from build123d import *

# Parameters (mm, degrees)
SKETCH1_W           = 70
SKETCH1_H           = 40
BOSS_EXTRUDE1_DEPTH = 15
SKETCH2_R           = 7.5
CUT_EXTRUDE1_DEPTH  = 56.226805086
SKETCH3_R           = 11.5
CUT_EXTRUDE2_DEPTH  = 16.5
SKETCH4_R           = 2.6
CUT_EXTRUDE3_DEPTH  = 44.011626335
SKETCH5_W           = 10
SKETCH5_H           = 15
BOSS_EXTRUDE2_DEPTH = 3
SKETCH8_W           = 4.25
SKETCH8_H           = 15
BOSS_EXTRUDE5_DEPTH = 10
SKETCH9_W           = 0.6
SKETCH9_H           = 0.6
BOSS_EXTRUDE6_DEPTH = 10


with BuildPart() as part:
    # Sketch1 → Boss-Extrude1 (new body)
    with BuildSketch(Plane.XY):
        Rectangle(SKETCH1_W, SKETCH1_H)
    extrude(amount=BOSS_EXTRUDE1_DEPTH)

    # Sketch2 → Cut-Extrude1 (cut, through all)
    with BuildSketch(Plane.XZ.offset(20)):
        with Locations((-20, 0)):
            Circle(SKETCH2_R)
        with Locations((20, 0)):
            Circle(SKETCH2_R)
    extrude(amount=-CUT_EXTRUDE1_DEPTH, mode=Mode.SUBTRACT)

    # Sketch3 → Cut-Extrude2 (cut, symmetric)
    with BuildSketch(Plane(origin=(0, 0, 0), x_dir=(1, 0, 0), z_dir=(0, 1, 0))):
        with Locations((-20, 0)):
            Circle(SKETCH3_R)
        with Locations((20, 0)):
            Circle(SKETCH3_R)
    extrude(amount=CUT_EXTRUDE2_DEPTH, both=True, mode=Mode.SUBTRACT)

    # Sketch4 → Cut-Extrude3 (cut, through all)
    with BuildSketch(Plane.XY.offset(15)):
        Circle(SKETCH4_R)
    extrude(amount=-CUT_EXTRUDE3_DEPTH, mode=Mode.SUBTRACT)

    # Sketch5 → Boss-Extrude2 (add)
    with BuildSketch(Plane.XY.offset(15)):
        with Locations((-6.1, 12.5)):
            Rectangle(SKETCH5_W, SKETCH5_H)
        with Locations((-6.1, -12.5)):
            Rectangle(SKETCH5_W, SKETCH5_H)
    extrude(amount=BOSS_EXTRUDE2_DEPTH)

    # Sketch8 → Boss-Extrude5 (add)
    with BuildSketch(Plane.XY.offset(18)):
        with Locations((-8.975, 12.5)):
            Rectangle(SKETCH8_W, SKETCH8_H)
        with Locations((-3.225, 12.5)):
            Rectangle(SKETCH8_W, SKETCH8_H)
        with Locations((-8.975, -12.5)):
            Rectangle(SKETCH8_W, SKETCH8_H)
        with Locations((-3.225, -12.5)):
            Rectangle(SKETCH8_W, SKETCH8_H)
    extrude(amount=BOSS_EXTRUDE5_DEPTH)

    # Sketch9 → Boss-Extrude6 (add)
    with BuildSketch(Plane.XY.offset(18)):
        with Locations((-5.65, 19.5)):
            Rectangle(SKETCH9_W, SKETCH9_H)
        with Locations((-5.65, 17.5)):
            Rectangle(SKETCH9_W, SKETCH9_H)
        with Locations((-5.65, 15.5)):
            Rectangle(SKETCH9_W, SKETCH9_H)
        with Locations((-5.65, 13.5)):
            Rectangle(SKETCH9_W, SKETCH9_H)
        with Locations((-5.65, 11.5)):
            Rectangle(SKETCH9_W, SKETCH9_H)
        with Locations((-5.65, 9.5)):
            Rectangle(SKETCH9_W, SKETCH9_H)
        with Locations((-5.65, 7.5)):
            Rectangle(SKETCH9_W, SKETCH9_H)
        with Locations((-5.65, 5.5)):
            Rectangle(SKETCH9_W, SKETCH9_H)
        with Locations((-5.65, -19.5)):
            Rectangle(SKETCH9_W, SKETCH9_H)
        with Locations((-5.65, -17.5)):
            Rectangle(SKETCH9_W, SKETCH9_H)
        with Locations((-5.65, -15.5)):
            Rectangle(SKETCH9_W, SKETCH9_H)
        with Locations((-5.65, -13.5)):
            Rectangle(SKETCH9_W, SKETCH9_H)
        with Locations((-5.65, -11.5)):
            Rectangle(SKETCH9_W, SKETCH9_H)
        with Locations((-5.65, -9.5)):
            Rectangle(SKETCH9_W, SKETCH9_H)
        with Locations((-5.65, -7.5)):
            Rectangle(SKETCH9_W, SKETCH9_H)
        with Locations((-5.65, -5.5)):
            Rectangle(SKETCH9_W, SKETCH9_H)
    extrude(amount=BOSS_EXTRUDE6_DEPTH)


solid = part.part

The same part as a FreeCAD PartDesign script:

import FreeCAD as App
import Part
import Sketcher
from FreeCAD import Vector


def add_polygon(sketch, points):
    """Adds a closed chain of lines whose ends are joined by coincident constraints."""
    first, n = sketch.GeometryCount, len(points)
    for a, b in zip(points, points[1:] + points[:1]):
        sketch.addGeometry(Part.LineSegment(App.Vector(*a, 0), App.Vector(*b, 0)), False)
    for i in range(n):
        sketch.addConstraint(Sketcher.Constraint("Coincident", first + i, 2, first + (i + 1) % n, 1))

doc = App.newDocument("Part")
params = doc.addObject("Spreadsheet::Sheet", "Params")
for row, (alias, value) in enumerate([
    ("sketch1_width", "70 mm"),
    ("sketch1_height", "40 mm"),
    ("pad1_length", "15 mm"),
    ("sketch2_diameter", "15 mm"),
    ("sketch3_diameter", "23 mm"),
    ("pocket2_length", "33 mm"),
    ("sketch4_diameter", "5.2 mm"),
    ("sketch5_width", "10 mm"),
    ("sketch5_height", "15 mm"),
    ("pad2_length", "3 mm"),
    ("sketch6_height", "15 mm"),
    ("sketch6_width", "4.25 mm"),
    ("pad3_length", "10 mm"),
    ("sketch7_width", "0.6 mm"),
    ("pad4_length", "10 mm"),
], start=1):
    params.set(f"A{row}", alias)
    params.set(f"B{row}", "=" + value)
    params.setAlias(f"B{row}", alias)

body = doc.addObject("PartDesign::Body", "Body")

sketch1 = body.newObject("Sketcher::SketchObject", "Sketch")
sketch1.AttachmentSupport = (doc.getObject("XY_Plane"), [""])
sketch1.MapMode = "FlatFace"
add_polygon(sketch1, [(-35, 20), (-35, -20), (35, -20), (35, 20)])
sketch1.addConstraint(Sketcher.Constraint("Vertical", 0))
sketch1.addConstraint(Sketcher.Constraint("Horizontal", 1))
sketch1.addConstraint(Sketcher.Constraint("Vertical", 2))
sketch1.addConstraint(Sketcher.Constraint("Horizontal", 3))
sketch1.addConstraint(Sketcher.Constraint("Symmetric", 0, 2, 2, 2, -1, 1))
sketch1.addConstraint(Sketcher.Constraint("DistanceX", 1, 1, 1, 2, 70.0))
sketch1.addConstraint(Sketcher.Constraint("DistanceY", 0, 2, 0, 1, 40.0))
sketch1.setExpression("Constraints[9]", "Params.sketch1_width")
sketch1.setExpression("Constraints[10]", "Params.sketch1_height")
pad1 = body.newObject("PartDesign::Pad", "Pad")
pad1.Profile = sketch1
pad1.setExpression("Length", "Params.pad1_length")

sketch2 = body.newObject("Sketcher::SketchObject", "Sketch001")
sketch2.AttachmentSupport = (doc.getObject("XZ_Plane"), [""])
sketch2.MapMode = "FlatFace"
sketch2.AttachmentOffset = App.Placement(Vector(0, 0, 20), App.Rotation())
sketch2.addGeometry(Part.Circle(Vector(-20, 0, 0), Vector(0, 0, 1), 7.5), False)
sketch2.addGeometry(Part.Circle(Vector(20, 0, 0), Vector(0, 0, 1), 7.5), False)
sketch2.addConstraint(Sketcher.Constraint("Equal", 0, 1))
sketch2.addConstraint(Sketcher.Constraint("Symmetric", 0, 3, 1, 3, -1, 1))
sketch2.addConstraint(Sketcher.Constraint("PointOnObject", 0, 3, -1))
sketch2.addConstraint(Sketcher.Constraint("Diameter", 0, 15.0))
sketch2.addConstraint(Sketcher.Constraint("DistanceX", 0, 3, -1, 1, 20.0))
sketch2.setExpression("Constraints[3]", "Params.sketch2_diameter")
pocket1 = body.newObject("PartDesign::Pocket", "Pocket")
pocket1.Profile = sketch2
pocket1.Type = "ThroughAll"

sketch3 = body.newObject("Sketcher::SketchObject", "Sketch002")
sketch3.AttachmentSupport = (doc.getObject("XZ_Plane"), [""])
sketch3.MapMode = "FlatFace"
sketch3.addGeometry(Part.Circle(Vector(-20, 0, 0), Vector(0, 0, 1), 11.5), False)
sketch3.addGeometry(Part.Circle(Vector(20, 0, 0), Vector(0, 0, 1), 11.5), False)
sketch3.addConstraint(Sketcher.Constraint("Equal", 0, 1))
sketch3.addConstraint(Sketcher.Constraint("Symmetric", 0, 3, 1, 3, -1, 1))
sketch3.addConstraint(Sketcher.Constraint("PointOnObject", 0, 3, -1))
sketch3.addConstraint(Sketcher.Constraint("Diameter", 0, 23.0))
sketch3.addConstraint(Sketcher.Constraint("DistanceX", 0, 3, -1, 1, 20.0))
sketch3.setExpression("Constraints[3]", "Params.sketch3_diameter")
pocket2 = body.newObject("PartDesign::Pocket", "Pocket001")
pocket2.Profile = sketch3
pocket2.setExpression("Length", "Params.pocket2_length")
pocket2.Midplane = True

sketch4 = body.newObject("Sketcher::SketchObject", "Sketch003")
sketch4.AttachmentSupport = (doc.getObject("XY_Plane"), [""])
sketch4.MapMode = "FlatFace"
sketch4.AttachmentOffset = App.Placement(Vector(0, 0, 15), App.Rotation())
sketch4.addGeometry(Part.Circle(Vector(0, 0, 0), Vector(0, 0, 1), 2.6), False)
sketch4.addConstraint(Sketcher.Constraint("Coincident", 0, 3, -1, 1))
sketch4.addConstraint(Sketcher.Constraint("Diameter", 0, 5.2))
sketch4.setExpression("Constraints[1]", "Params.sketch4_diameter")
pocket3 = body.newObject("PartDesign::Pocket", "Pocket002")
pocket3.Profile = sketch4
pocket3.Type = "ThroughAll"

sketch5 = body.newObject("Sketcher::SketchObject", "Sketch004")
sketch5.AttachmentSupport = (doc.getObject("XY_Plane"), [""])
sketch5.MapMode = "FlatFace"
sketch5.AttachmentOffset = App.Placement(Vector(0, 0, 15), App.Rotation())
add_polygon(sketch5, [(-11.1, 20), (-11.1, 5), (-1.1, 5), (-1.1, 20)])
add_polygon(sketch5, [(-11.1, -5), (-11.1, -20), (-1.1, -20), (-1.1, -5)])
sketch5.addConstraint(Sketcher.Constraint("Vertical", 0))
sketch5.addConstraint(Sketcher.Constraint("Horizontal", 1))
sketch5.addConstraint(Sketcher.Constraint("Vertical", 2))
sketch5.addConstraint(Sketcher.Constraint("Horizontal", 3))
sketch5.addConstraint(Sketcher.Constraint("Vertical", 4))
sketch5.addConstraint(Sketcher.Constraint("Horizontal", 5))
sketch5.addConstraint(Sketcher.Constraint("Vertical", 6))
sketch5.addConstraint(Sketcher.Constraint("Horizontal", 7))
sketch5.addConstraint(Sketcher.Constraint("Symmetric", 3, 2, 4, 2, -1))
sketch5.addConstraint(Sketcher.Constraint("Symmetric", 1, 2, 6, 2, -1))
sketch5.addConstraint(Sketcher.Constraint("DistanceX", 1, 1, 1, 2, 10.0))
sketch5.addConstraint(Sketcher.Constraint("DistanceY", 0, 2, 0, 1, 15.0))
sketch5.addConstraint(Sketcher.Constraint("DistanceY", -1, 1, 0, 2, 5.0))
sketch5.addConstraint(Sketcher.Constraint("DistanceX", 0, 2, -1, 1, 11.1))
sketch5.setExpression("Constraints[18]", "Params.sketch5_width")
sketch5.setExpression("Constraints[19]", "Params.sketch5_height")
pad2 = body.newObject("PartDesign::Pad", "Pad001")
pad2.Profile = sketch5
pad2.setExpression("Length", "Params.pad2_length")

sketch6 = body.newObject("Sketcher::SketchObject", "Sketch005")
sketch6.AttachmentSupport = (doc.getObject("XY_Plane"), [""])
sketch6.MapMode = "FlatFace"
sketch6.AttachmentOffset = App.Placement(Vector(0, 0, 18), App.Rotation())
add_polygon(sketch6, [(-11.1, 20), (-11.1, 5), (-6.85, 5), (-6.85, 20)])
add_polygon(sketch6, [(-5.35, 20), (-5.35, 5), (-1.1, 5), (-1.1, 20)])
add_polygon(sketch6, [(-11.1, -5), (-11.1, -20), (-6.85, -20), (-6.85, -5)])
add_polygon(sketch6, [(-5.35, -5), (-5.35, -20), (-1.1, -20), (-1.1, -5)])
sketch6.addConstraint(Sketcher.Constraint("Vertical", 0))
sketch6.addConstraint(Sketcher.Constraint("Horizontal", 1))
sketch6.addConstraint(Sketcher.Constraint("Vertical", 2))
sketch6.addConstraint(Sketcher.Constraint("Horizontal", 3))
sketch6.addConstraint(Sketcher.Constraint("Vertical", 4))
sketch6.addConstraint(Sketcher.Constraint("Horizontal", 5))
sketch6.addConstraint(Sketcher.Constraint("Vertical", 6))
sketch6.addConstraint(Sketcher.Constraint("Horizontal", 7))
sketch6.addConstraint(Sketcher.Constraint("Vertical", 8))
sketch6.addConstraint(Sketcher.Constraint("Horizontal", 9))
sketch6.addConstraint(Sketcher.Constraint("Vertical", 10))
sketch6.addConstraint(Sketcher.Constraint("Horizontal", 11))
sketch6.addConstraint(Sketcher.Constraint("Vertical", 12))
sketch6.addConstraint(Sketcher.Constraint("Horizontal", 13))
sketch6.addConstraint(Sketcher.Constraint("Vertical", 14))
sketch6.addConstraint(Sketcher.Constraint("Horizontal", 15))
sketch6.addConstraint(Sketcher.Constraint("Symmetric", 3, 2, 8, 2, -1))
sketch6.addConstraint(Sketcher.Constraint("Symmetric", 1, 2, 10, 2, -1))
sketch6.addConstraint(Sketcher.Constraint("Symmetric", 7, 2, 12, 2, -1))
sketch6.addConstraint(Sketcher.Constraint("Symmetric", 5, 2, 14, 2, -1))
sketch6.addConstraint(Sketcher.Constraint("Horizontal", 1, 2, 4, 2))
sketch6.addConstraint(Sketcher.Constraint("Horizontal", 3, 2, 6, 2))
sketch6.addConstraint(Sketcher.Constraint("Equal", 3, 5))
sketch6.addConstraint(Sketcher.Constraint("DistanceY", 0, 2, 0, 1, 15.0))
sketch6.addConstraint(Sketcher.Constraint("DistanceY", -1, 1, 0, 2, 5.0))
sketch6.addConstraint(Sketcher.Constraint("DistanceX", 0, 2, 5, 2, 10.0))
sketch6.addConstraint(Sketcher.Constraint("DistanceX", 1, 1, 1, 2, 4.25))
sketch6.addConstraint(Sketcher.Constraint("DistanceX", 0, 2, -1, 1, 11.1))
sketch6.setExpression("Constraints[39]", "Params.sketch6_height")
sketch6.setExpression("Constraints[42]", "Params.sketch6_width")
pad3 = body.newObject("PartDesign::Pad", "Pad002")
pad3.Profile = sketch6
pad3.setExpression("Length", "Params.pad3_length")

sketch7 = body.newObject("Sketcher::SketchObject", "Sketch006")
sketch7.AttachmentSupport = (doc.getObject("XY_Plane"), [""])
sketch7.MapMode = "FlatFace"
sketch7.AttachmentOffset = App.Placement(Vector(0, 0, 18), App.Rotation())
add_polygon(sketch7, [(-5.95, 19.8), (-5.95, 19.2), (-5.35, 19.2), (-5.35, 19.8)])
add_polygon(sketch7, [(-5.95, 17.8), (-5.95, 17.2), (-5.35, 17.2), (-5.35, 17.8)])
add_polygon(sketch7, [(-5.95, 15.8), (-5.95, 15.2), (-5.35, 15.2), (-5.35, 15.8)])
add_polygon(sketch7, [(-5.95, 13.8), (-5.95, 13.2), (-5.35, 13.2), (-5.35, 13.8)])
add_polygon(sketch7, [(-5.95, 11.8), (-5.95, 11.2), (-5.35, 11.2), (-5.35, 11.8)])
add_polygon(sketch7, [(-5.95, 9.8), (-5.95, 9.2), (-5.35, 9.2), (-5.35, 9.8)])
add_polygon(sketch7, [(-5.95, 7.8), (-5.95, 7.2), (-5.35, 7.2), (-5.35, 7.8)])
add_polygon(sketch7, [(-5.95, 5.8), (-5.95, 5.2), (-5.35, 5.2), (-5.35, 5.8)])
add_polygon(sketch7, [(-5.95, -19.2), (-5.95, -19.8), (-5.35, -19.8), (-5.35, -19.2)])
add_polygon(sketch7, [(-5.95, -17.2), (-5.95, -17.8), (-5.35, -17.8), (-5.35, -17.2)])
add_polygon(sketch7, [(-5.95, -15.2), (-5.95, -15.8), (-5.35, -15.8), (-5.35, -15.2)])
add_polygon(sketch7, [(-5.95, -13.2), (-5.95, -13.8), (-5.35, -13.8), (-5.35, -13.2)])
add_polygon(sketch7, [(-5.95, -11.2), (-5.95, -11.8), (-5.35, -11.8), (-5.35, -11.2)])
add_polygon(sketch7, [(-5.95, -9.2), (-5.95, -9.8), (-5.35, -9.8), (-5.35, -9.2)])
add_polygon(sketch7, [(-5.95, -7.2), (-5.95, -7.8), (-5.35, -7.8), (-5.35, -7.2)])
add_polygon(sketch7, [(-5.95, -5.2), (-5.95, -5.8), (-5.35, -5.8), (-5.35, -5.2)])
sketch7.addConstraint(Sketcher.Constraint("Vertical", 0))
sketch7.addConstraint(Sketcher.Constraint("Horizontal", 1))
sketch7.addConstraint(Sketcher.Constraint("Vertical", 2))
sketch7.addConstraint(Sketcher.Constraint("Horizontal", 3))
sketch7.addConstraint(Sketcher.Constraint("Vertical", 4))
sketch7.addConstraint(Sketcher.Constraint("Horizontal", 5))
sketch7.addConstraint(Sketcher.Constraint("Vertical", 6))
sketch7.addConstraint(Sketcher.Constraint("Horizontal", 7))
sketch7.addConstraint(Sketcher.Constraint("Vertical", 8))
sketch7.addConstraint(Sketcher.Constraint("Horizontal", 9))
sketch7.addConstraint(Sketcher.Constraint("Vertical", 10))
sketch7.addConstraint(Sketcher.Constraint("Horizontal", 11))
sketch7.addConstraint(Sketcher.Constraint("Vertical", 12))
sketch7.addConstraint(Sketcher.Constraint("Horizontal", 13))
sketch7.addConstraint(Sketcher.Constraint("Vertical", 14))
sketch7.addConstraint(Sketcher.Constraint("Horizontal", 15))
sketch7.addConstraint(Sketcher.Constraint("Vertical", 16))
sketch7.addConstraint(Sketcher.Constraint("Horizontal", 17))
sketch7.addConstraint(Sketcher.Constraint("Vertical", 18))
sketch7.addConstraint(Sketcher.Constraint("Horizontal", 19))
sketch7.addConstraint(Sketcher.Constraint("Vertical", 20))
sketch7.addConstraint(Sketcher.Constraint("Horizontal", 21))
sketch7.addConstraint(Sketcher.Constraint("Vertical", 22))
sketch7.addConstraint(Sketcher.Constraint("Horizontal", 23))
sketch7.addConstraint(Sketcher.Constraint("Vertical", 24))
sketch7.addConstraint(Sketcher.Constraint("Horizontal", 25))
sketch7.addConstraint(Sketcher.Constraint("Vertical", 26))
sketch7.addConstraint(Sketcher.Constraint("Horizontal", 27))
sketch7.addConstraint(Sketcher.Constraint("Vertical", 28))
sketch7.addConstraint(Sketcher.Constraint("Horizontal", 29))
sketch7.addConstraint(Sketcher.Constraint("Vertical", 30))
sketch7.addConstraint(Sketcher.Constraint("Horizontal", 31))
sketch7.addConstraint(Sketcher.Constraint("Vertical", 32))
sketch7.addConstraint(Sketcher.Constraint("Horizontal", 33))
sketch7.addConstraint(Sketcher.Constraint("Vertical", 34))
sketch7.addConstraint(Sketcher.Constraint("Horizontal", 35))
sketch7.addConstraint(Sketcher.Constraint("Vertical", 36))
sketch7.addConstraint(Sketcher.Constraint("Horizontal", 37))
sketch7.addConstraint(Sketcher.Constraint("Vertical", 38))
sketch7.addConstraint(Sketcher.Constraint("Horizontal", 39))
sketch7.addConstraint(Sketcher.Constraint("Vertical", 40))
sketch7.addConstraint(Sketcher.Constraint("Horizontal", 41))
sketch7.addConstraint(Sketcher.Constraint("Vertical", 42))
sketch7.addConstraint(Sketcher.Constraint("Horizontal", 43))
sketch7.addConstraint(Sketcher.Constraint("Vertical", 44))
sketch7.addConstraint(Sketcher.Constraint("Horizontal", 45))
sketch7.addConstraint(Sketcher.Constraint("Vertical", 46))
sketch7.addConstraint(Sketcher.Constraint("Horizontal", 47))
sketch7.addConstraint(Sketcher.Constraint("Vertical", 48))
sketch7.addConstraint(Sketcher.Constraint("Horizontal", 49))
sketch7.addConstraint(Sketcher.Constraint("Vertical", 50))
sketch7.addConstraint(Sketcher.Constraint("Horizontal", 51))
sketch7.addConstraint(Sketcher.Constraint("Vertical", 52))
sketch7.addConstraint(Sketcher.Constraint("Horizontal", 53))
sketch7.addConstraint(Sketcher.Constraint("Vertical", 54))
sketch7.addConstraint(Sketcher.Constraint("Horizontal", 55))
sketch7.addConstraint(Sketcher.Constraint("Vertical", 56))
sketch7.addConstraint(Sketcher.Constraint("Horizontal", 57))
sketch7.addConstraint(Sketcher.Constraint("Vertical", 58))
sketch7.addConstraint(Sketcher.Constraint("Horizontal", 59))
sketch7.addConstraint(Sketcher.Constraint("Vertical", 60))
sketch7.addConstraint(Sketcher.Constraint("Horizontal", 61))
sketch7.addConstraint(Sketcher.Constraint("Vertical", 62))
sketch7.addConstraint(Sketcher.Constraint("Horizontal", 63))
sketch7.addConstraint(Sketcher.Constraint("Symmetric", 3, 2, 32, 2, -1))
sketch7.addConstraint(Sketcher.Constraint("Symmetric", 1, 2, 34, 2, -1))
sketch7.addConstraint(Sketcher.Constraint("Symmetric", 7, 2, 36, 2, -1))
sketch7.addConstraint(Sketcher.Constraint("Symmetric", 5, 2, 38, 2, -1))
sketch7.addConstraint(Sketcher.Constraint("Symmetric", 11, 2, 40, 2, -1))
sketch7.addConstraint(Sketcher.Constraint("Symmetric", 9, 2, 42, 2, -1))
sketch7.addConstraint(Sketcher.Constraint("Symmetric", 15, 2, 44, 2, -1))
sketch7.addConstraint(Sketcher.Constraint("Symmetric", 13, 2, 46, 2, -1))
sketch7.addConstraint(Sketcher.Constraint("Symmetric", 19, 2, 48, 2, -1))
sketch7.addConstraint(Sketcher.Constraint("Symmetric", 17, 2, 50, 2, -1))
sketch7.addConstraint(Sketcher.Constraint("Symmetric", 23, 2, 52, 2, -1))
sketch7.addConstraint(Sketcher.Constraint("Symmetric", 21, 2, 54, 2, -1))
sketch7.addConstraint(Sketcher.Constraint("Symmetric", 27, 2, 56, 2, -1))
sketch7.addConstraint(Sketcher.Constraint("Symmetric", 25, 2, 58, 2, -1))
sketch7.addConstraint(Sketcher.Constraint("Symmetric", 31, 2, 60, 2, -1))
sketch7.addConstraint(Sketcher.Constraint("Symmetric", 29, 2, 62, 2, -1))
sketch7.addConstraint(Sketcher.Constraint("Vertical", 3, 2, 4, 2))
sketch7.addConstraint(Sketcher.Constraint("Vertical", 2, 2, 5, 2))
sketch7.addConstraint(Sketcher.Constraint("Vertical", 7, 2, 8, 2))
sketch7.addConstraint(Sketcher.Constraint("Vertical", 6, 2, 9, 2))
sketch7.addConstraint(Sketcher.Constraint("Vertical", 11, 2, 12, 2))
sketch7.addConstraint(Sketcher.Constraint("Vertical", 10, 2, 13, 2))
sketch7.addConstraint(Sketcher.Constraint("Vertical", 15, 2, 16, 2))
sketch7.addConstraint(Sketcher.Constraint("Vertical", 14, 2, 17, 2))
sketch7.addConstraint(Sketcher.Constraint("Vertical", 19, 2, 20, 2))
sketch7.addConstraint(Sketcher.Constraint("Vertical", 18, 2, 21, 2))
sketch7.addConstraint(Sketcher.Constraint("Vertical", 23, 2, 24, 2))
sketch7.addConstraint(Sketcher.Constraint("Vertical", 22, 2, 25, 2))
sketch7.addConstraint(Sketcher.Constraint("Vertical", 27, 2, 28, 2))
sketch7.addConstraint(Sketcher.Constraint("Vertical", 26, 2, 29, 2))
sketch7.addConstraint(Sketcher.Constraint("Equal", 63, 0))
sketch7.addConstraint(Sketcher.Constraint("Equal", 2, 4))
sketch7.addConstraint(Sketcher.Constraint("Equal", 6, 8))
sketch7.addConstraint(Sketcher.Constraint("Equal", 10, 12))
sketch7.addConstraint(Sketcher.Constraint("Equal", 14, 16))
sketch7.addConstraint(Sketcher.Constraint("Equal", 18, 20))
sketch7.addConstraint(Sketcher.Constraint("Equal", 22, 24))
sketch7.addConstraint(Sketcher.Constraint("Equal", 26, 28))
sketch7.addConstraint(Sketcher.Constraint("DistanceX", 1, 1, 1, 2, 0.6))
sketch7.addConstraint(Sketcher.Constraint("DistanceY", -1, 1, 0, 2, 19.2))
sketch7.addConstraint(Sketcher.Constraint("DistanceY", -1, 1, 4, 2, 17.2))
sketch7.addConstraint(Sketcher.Constraint("DistanceY", -1, 1, 8, 2, 15.2))
sketch7.addConstraint(Sketcher.Constraint("DistanceY", -1, 1, 12, 2, 13.2))
sketch7.addConstraint(Sketcher.Constraint("DistanceY", -1, 1, 16, 2, 11.2))
sketch7.addConstraint(Sketcher.Constraint("DistanceY", -1, 1, 20, 2, 9.2))
sketch7.addConstraint(Sketcher.Constraint("DistanceY", -1, 1, 24, 2, 7.2))
sketch7.addConstraint(Sketcher.Constraint("DistanceY", -1, 1, 28, 2, 5.2))
sketch7.addConstraint(Sketcher.Constraint("DistanceX", 0, 2, -1, 1, 5.95))
sketch7.setExpression("Constraints[166]", "Params.sketch7_width")
pad4 = body.newObject("PartDesign::Pad", "Pad003")
pad4.Profile = sketch7
pad4.setExpression("Length", "Params.pad4_length")

doc.recompute()
